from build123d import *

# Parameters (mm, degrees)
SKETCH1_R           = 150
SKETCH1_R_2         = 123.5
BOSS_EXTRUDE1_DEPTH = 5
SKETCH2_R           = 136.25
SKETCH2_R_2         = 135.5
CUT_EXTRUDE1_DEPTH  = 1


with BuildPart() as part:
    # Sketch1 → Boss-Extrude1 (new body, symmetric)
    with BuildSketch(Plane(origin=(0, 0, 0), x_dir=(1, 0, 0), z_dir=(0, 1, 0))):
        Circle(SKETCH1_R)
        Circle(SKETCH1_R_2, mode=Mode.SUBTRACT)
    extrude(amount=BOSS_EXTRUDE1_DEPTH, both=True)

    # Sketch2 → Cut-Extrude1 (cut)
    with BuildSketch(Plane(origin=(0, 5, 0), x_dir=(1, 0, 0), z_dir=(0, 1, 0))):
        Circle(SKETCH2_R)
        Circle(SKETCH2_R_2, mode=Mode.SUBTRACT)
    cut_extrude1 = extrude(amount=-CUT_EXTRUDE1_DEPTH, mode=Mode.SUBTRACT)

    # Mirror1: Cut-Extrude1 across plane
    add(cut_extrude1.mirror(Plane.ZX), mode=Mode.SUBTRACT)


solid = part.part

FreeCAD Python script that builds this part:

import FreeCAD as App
import Part
import Sketcher
Q = App.Units.Quantity

doc = App.newDocument("Part")
body = doc.addObject("PartDesign::Body", "Body")

sketch1 = body.newObject("Sketcher::SketchObject", "Sketch")
sketch1.AttachmentSupport = (doc.getObject("XZ_Plane"), [""])
sketch1.MapMode = "FlatFace"
sketch1.addGeometry(Part.Circle(App.Vector(0, 0, 0), App.Vector(0, 0, 1), 150), False)
sketch1.addGeometry(Part.Circle(App.Vector(0, 0, 0), App.Vector(0, 0, 1), 123.5), False)
sketch1.addConstraint(Sketcher.Constraint("Coincident", 0, 3, -1, 1))
sketch1.addConstraint(Sketcher.Constraint("Coincident", 1, 3, -1, 1))
sketch1.addConstraint(Sketcher.Constraint("Diameter", 0, Q("300 mm")))
sketch1.addConstraint(Sketcher.Constraint("Diameter", 1, Q("247 mm")))
pad1 = body.newObject("PartDesign::Pad", "Pad")
pad1.Profile = sketch1
pad1.Length = 10
pad1.Midplane = True

sketch2 = body.newObject("Sketcher::SketchObject", "Sketch001")
sketch2.AttachmentSupport = (doc.getObject("XZ_Plane"), [""])
sketch2.MapMode = "FlatFace"
sketch2.AttachmentOffset = App.Placement(App.Vector(0, 0, -5), App.Rotation())
sketch2.addGeometry(Part.Circle(App.Vector(0, 0, 0), App.Vector(0, 0, 1), 136.25), False)
sketch2.addGeometry(Part.Circle(App.Vector(0, 0, 0), App.Vector(0, 0, 1), 135.5), False)
sketch2.addConstraint(Sketcher.Constraint("Coincident", 0, 3, -1, 1))
sketch2.addConstraint(Sketcher.Constraint("Coincident", 1, 3, -1, 1))
sketch2.addConstraint(Sketcher.Constraint("Diameter", 1, Q("271 mm")))
sketch2.addConstraint(Sketcher.Constraint("Diameter", 0, Q("272.5 mm")))
pocket1 = body.newObject("PartDesign::Pocket", "Pocket")
pocket1.Profile = sketch2
pocket1.Length = 1
pocket1.Reversed = True
doc.recompute()

mirrored = body.newObject("PartDesign::Mirrored", "Mirrored")
mirrored.Originals = [pocket1]
mirrored.MirrorPlane = (doc.getObject("XZ_Plane"), [""])
body.Tip = mirrored

doc.recompute()
